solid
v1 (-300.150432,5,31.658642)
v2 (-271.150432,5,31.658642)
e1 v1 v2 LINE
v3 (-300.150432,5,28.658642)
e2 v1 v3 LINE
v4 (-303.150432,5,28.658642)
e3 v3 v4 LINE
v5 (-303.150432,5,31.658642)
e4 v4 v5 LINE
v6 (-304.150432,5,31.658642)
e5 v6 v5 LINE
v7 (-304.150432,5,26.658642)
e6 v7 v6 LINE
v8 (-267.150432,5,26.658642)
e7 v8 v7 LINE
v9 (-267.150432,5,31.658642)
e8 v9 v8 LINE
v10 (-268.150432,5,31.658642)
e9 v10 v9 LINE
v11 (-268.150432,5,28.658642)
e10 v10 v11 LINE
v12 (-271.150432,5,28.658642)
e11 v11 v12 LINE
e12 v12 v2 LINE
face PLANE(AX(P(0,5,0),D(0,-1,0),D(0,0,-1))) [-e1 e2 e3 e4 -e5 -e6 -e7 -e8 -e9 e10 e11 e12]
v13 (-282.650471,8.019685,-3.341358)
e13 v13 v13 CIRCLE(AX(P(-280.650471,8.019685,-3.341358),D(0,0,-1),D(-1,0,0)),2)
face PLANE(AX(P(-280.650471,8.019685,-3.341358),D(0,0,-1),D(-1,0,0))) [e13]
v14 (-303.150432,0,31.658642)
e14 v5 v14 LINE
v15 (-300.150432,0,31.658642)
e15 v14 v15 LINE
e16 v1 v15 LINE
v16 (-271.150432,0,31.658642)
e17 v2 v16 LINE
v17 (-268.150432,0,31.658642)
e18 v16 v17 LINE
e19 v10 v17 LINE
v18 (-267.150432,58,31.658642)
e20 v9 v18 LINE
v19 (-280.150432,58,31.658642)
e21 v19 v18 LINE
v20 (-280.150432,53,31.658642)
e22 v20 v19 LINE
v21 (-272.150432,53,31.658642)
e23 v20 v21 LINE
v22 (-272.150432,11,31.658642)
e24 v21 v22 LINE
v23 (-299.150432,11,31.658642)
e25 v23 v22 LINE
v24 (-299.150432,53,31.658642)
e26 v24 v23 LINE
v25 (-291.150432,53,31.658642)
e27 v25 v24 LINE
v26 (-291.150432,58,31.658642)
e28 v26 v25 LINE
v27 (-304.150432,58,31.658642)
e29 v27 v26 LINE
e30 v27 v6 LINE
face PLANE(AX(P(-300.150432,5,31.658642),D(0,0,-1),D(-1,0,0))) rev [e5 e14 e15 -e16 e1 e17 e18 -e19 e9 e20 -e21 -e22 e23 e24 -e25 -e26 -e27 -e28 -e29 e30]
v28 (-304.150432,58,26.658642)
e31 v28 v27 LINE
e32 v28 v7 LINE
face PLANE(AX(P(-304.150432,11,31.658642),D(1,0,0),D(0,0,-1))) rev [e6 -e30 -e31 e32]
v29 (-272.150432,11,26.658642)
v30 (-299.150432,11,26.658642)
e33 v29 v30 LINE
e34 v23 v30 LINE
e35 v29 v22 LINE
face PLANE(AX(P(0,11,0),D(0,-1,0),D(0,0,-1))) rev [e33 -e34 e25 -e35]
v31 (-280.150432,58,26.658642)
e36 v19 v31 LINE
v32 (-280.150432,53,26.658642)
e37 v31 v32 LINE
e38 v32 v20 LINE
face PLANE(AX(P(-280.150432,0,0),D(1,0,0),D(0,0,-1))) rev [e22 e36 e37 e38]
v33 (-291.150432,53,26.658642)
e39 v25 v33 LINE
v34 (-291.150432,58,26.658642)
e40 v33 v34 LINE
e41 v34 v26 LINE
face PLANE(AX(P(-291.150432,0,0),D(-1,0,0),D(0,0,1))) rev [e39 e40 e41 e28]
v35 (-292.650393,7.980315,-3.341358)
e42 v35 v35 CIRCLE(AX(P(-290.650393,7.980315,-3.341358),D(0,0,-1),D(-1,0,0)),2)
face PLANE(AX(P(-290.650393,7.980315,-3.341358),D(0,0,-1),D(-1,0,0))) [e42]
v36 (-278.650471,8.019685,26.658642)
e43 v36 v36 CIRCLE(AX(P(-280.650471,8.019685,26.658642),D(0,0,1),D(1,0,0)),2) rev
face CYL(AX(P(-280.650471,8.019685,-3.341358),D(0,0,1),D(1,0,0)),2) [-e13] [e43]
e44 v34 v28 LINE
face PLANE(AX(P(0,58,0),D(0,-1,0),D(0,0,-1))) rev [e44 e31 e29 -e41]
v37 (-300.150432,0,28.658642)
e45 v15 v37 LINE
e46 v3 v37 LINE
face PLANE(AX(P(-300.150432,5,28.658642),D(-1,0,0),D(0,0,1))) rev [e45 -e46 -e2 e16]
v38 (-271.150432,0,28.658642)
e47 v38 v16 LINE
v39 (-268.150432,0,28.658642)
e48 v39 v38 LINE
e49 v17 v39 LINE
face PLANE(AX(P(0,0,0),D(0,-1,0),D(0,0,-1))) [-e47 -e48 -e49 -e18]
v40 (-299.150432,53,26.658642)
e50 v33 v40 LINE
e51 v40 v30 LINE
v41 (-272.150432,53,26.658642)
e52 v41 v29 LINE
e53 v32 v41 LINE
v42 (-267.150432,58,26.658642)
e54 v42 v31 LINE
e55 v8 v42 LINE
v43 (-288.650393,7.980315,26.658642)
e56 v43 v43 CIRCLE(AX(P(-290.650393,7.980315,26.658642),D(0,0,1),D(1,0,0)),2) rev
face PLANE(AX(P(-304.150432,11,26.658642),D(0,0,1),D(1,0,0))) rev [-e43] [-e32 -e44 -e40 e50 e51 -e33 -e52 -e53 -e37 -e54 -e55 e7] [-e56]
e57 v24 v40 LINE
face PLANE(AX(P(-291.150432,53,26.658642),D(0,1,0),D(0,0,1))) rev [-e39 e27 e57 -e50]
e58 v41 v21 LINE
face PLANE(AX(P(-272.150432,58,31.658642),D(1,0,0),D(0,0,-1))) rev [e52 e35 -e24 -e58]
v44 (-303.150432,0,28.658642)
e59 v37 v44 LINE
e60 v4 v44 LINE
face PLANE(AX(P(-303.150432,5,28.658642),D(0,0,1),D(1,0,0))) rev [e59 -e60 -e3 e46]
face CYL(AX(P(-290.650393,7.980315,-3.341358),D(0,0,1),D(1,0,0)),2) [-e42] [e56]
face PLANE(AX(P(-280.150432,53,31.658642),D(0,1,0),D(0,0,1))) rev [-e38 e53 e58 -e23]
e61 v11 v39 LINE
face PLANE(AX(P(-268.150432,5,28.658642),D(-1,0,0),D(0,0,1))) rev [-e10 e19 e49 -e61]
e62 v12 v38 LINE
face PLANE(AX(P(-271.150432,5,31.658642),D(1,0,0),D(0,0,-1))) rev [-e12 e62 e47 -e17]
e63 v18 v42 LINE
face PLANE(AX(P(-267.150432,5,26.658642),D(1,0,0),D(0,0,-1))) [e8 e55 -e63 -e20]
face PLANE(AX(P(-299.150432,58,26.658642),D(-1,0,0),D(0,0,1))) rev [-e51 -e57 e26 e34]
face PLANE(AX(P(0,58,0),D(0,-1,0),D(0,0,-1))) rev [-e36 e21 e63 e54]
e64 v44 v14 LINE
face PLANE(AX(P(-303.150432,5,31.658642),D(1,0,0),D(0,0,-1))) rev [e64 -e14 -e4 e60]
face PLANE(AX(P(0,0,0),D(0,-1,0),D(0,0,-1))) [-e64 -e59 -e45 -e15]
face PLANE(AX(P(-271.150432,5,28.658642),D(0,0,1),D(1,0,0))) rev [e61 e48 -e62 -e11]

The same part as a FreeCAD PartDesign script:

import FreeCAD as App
import Part
import Sketcher

V = App.Vector
Q = App.Units.Quantity


def add_polygon(sketch, points):
    """Adds a closed chain of lines whose ends are joined by coincident constraints."""
    first, n = sketch.GeometryCount, len(points)
    for a, b in zip(points, points[1:] + points[:1]):
        sketch.addGeometry(Part.LineSegment(App.Vector(*a, 0), App.Vector(*b, 0)), False)
    for i in range(n):
        sketch.addConstraint(Sketcher.Constraint("Coincident", first + i, 2, first + (i + 1) % n, 1))

doc = App.newDocument("Part")
params = doc.addObject("Spreadsheet::Sheet", "Params")
for row, (alias, value) in enumerate([
    ("sketch1_width", "3 mm"),
    ("pad1_length", "5 mm"),
    ("sketch2_width", "3 mm"),
    ("pad2_length", "5 mm"),
    ("sketch3_width", "5 mm"),
    ("pad3_length", "6 mm"),
    ("sketch4_width", "37 mm"),
    ("sketch4_height", "5 mm"),
    ("pad4_length", "6 mm"),
    ("sketch5_diameter", "4 mm"),
    ("pad5_length", "30 mm"),
    ("sketch6_width", "5 mm"),
    ("pad6_length", "47 mm"),
    ("sketch7_width", "5 mm"),
    ("pad7_length", "8 mm"),
    ("sketch8_width", "5 mm"),
    ("pad8_length", "8 mm"),
], start=1):
    params.set(f"A{row}", alias)
    params.set(f"B{row}", "=" + value)
    params.setAlias(f"B{row}", alias)

body = doc.addObject("PartDesign::Body", "Body")

# Sketch on XZ plane
sketch1 = body.newObject("Sketcher::SketchObject", "Sketch")
sketch1.AttachmentSupport = (doc.getObject("XZ_Plane"), [""])
sketch1.MapMode = "FlatFace"
add_polygon(sketch1, [(-303.2, 28.7), (-303.2, 31.7), (-300.2, 31.7), (-300.2, 28.7)])  # lines 0-3
sketch1.addConstraint(Sketcher.Constraint("Vertical", 0))
sketch1.addConstraint(Sketcher.Constraint("Horizontal", 1))
sketch1.addConstraint(Sketcher.Constraint("Vertical", 2))
sketch1.addConstraint(Sketcher.Constraint("Horizontal", 3))
sketch1.addConstraint(Sketcher.Constraint("Equal", 3, 0))
sketch1.addConstraint(Sketcher.Constraint("DistanceX", 1, 1, 1, 2, Q("3 mm")))
sketch1.addConstraint(Sketcher.Constraint("DistanceX", 0, 2, -1, 1, Q("303.150432 mm")))
sketch1.addConstraint(Sketcher.Constraint("DistanceY", -1, 1, 0, 2, Q("31.658642 mm")))
sketch1.setExpression("Constraints[9]", "Params.sketch1_width")
pad1 = body.newObject("PartDesign::Pad", "Pad")
pad1.Profile = sketch1
pad1.setExpression("Length", "Params.pad1_length")
pad1.Reversed = True
body2 = doc.addObject("PartDesign::Body", "Body001")

# Sketch on XZ plane
sketch2 = body2.newObject("Sketcher::SketchObject", "Sketch001")
sketch2.AttachmentSupport = (doc.getObject("XZ_Plane001"), [""])
sketch2.MapMode = "FlatFace"
add_polygon(sketch2, [(-271.2, 28.7), (-271.2, 31.7), (-268.2, 31.7), (-268.2, 28.7)])  # lines 0-3
sketch2.addConstraint(Sketcher.Constraint("Vertical", 0))
sketch2.addConstraint(Sketcher.Constraint("Horizontal", 1))
sketch2.addConstraint(Sketcher.Constraint("Vertical", 2))
sketch2.addConstraint(Sketcher.Constraint("Horizontal", 3))
sketch2.addConstraint(Sketcher.Constraint("Equal", 3, 0))
sketch2.addConstraint(Sketcher.Constraint("DistanceX", 1, 1, 1, 2, Q("3 mm")))
sketch2.addConstraint(Sketcher.Constraint("DistanceX", 0, 2, -1, 1, Q("271.150432 mm")))
sketch2.addConstraint(Sketcher.Constraint("DistanceY", -1, 1, 0, 2, Q("31.658642 mm")))
sketch2.setExpression("Constraints[9]", "Params.sketch2_width")
pad2 = body2.newObject("PartDesign::Pad", "Pad001")
pad2.Profile = sketch2
pad2.setExpression("Length", "Params.pad2_length")
pad2.Reversed = True
body.AllowCompound = True
doc.recompute()

boolean = body.newObject("PartDesign::Boolean", "Boolean")
boolean.Type = "Fuse"
boolean.addObjects([body2])

# Sketch on XZ plane
sketch3 = body.newObject("Sketcher::SketchObject", "Sketch002")
sketch3.AttachmentSupport = (doc.getObject("XZ_Plane"), [""])
sketch3.MapMode = "FlatFace"
sketch3.AttachmentOffset = App.Placement(V(0, 0, -5), App.Rotation())
add_polygon(sketch3, [(-304, 27), (-304, 32), (-299, 32), (-299, 27)])  # lines 0-3
add_polygon(sketch3, [(-272, 27), (-272, 32), (-267, 32), (-267, 27)])  # lines 4-7
sketch3.addConstraint(Sketcher.Constraint("Vertical", 0))
sketch3.addConstraint(Sketcher.Constraint("Horizontal", 1))
sketch3.addConstraint(Sketcher.Constraint("Vertical", 2))
sketch3.addConstraint(Sketcher.Constraint("Horizontal", 3))
sketch3.addConstraint(Sketcher.Constraint("Vertical", 4))
sketch3.addConstraint(Sketcher.Constraint("Horizontal", 5))
sketch3.addConstraint(Sketcher.Constraint("Vertical", 6))
sketch3.addConstraint(Sketcher.Constraint("Horizontal", 7))
sketch3.addConstraint(Sketcher.Constraint("Horizontal", 1, 2, 4, 2))
sketch3.addConstraint(Sketcher.Constraint("Horizontal", 3, 2, 6, 2))
sketch3.addConstraint(Sketcher.Constraint("Equal", 3, 5))
sketch3.addConstraint(Sketcher.Constraint("Equal", 7, 0))
sketch3.addConstraint(Sketcher.Constraint("DistanceX", 1, 1, 1, 2, Q("5 mm")))
sketch3.addConstraint(Sketcher.Constraint("DistanceX", 1, 2, 4, 2, Q("27 mm")))
sketch3.addConstraint(Sketcher.Constraint("DistanceX", 0, 2, -1, 1, Q("304.150432 mm")))
sketch3.addConstraint(Sketcher.Constraint("DistanceY", -1, 1, 0, 2, Q("31.658642 mm")))
sketch3.setExpression("Constraints[20]", "Params.sketch3_width")
pad3 = body.newObject("PartDesign::Pad", "Pad002")
pad3.Profile = sketch3
pad3.setExpression("Length", "Params.pad3_length")
pad3.Reversed = True

# Sketch on XZ plane
sketch4 = body.newObject("Sketcher::SketchObject", "Sketch003")
sketch4.AttachmentSupport = (doc.getObject("XZ_Plane"), [""])
sketch4.MapMode = "FlatFace"
sketch4.AttachmentOffset = App.Placement(V(0, 0, -11), App.Rotation())
add_polygon(sketch4, [(-304, 27), (-304, 32), (-267, 32), (-267, 27)])  # lines 0-3
sketch4.addConstraint(Sketcher.Constraint("Vertical", 0))
sketch4.addConstraint(Sketcher.Constraint("Horizontal", 1))
sketch4.addConstraint(Sketcher.Constraint("Vertical", 2))
sketch4.addConstraint(Sketcher.Constraint("Horizontal", 3))
sketch4.addConstraint(Sketcher.Constraint("DistanceX", 1, 1, 1, 2, Q("37 mm")))
sketch4.addConstraint(Sketcher.Constraint("DistanceY", 0, 1, 0, 2, Q("5 mm")))
sketch4.addConstraint(Sketcher.Constraint("DistanceX", 0, 2, -1, 1, Q("304.150432 mm")))
sketch4.addConstraint(Sketcher.Constraint("DistanceY", -1, 1, 0, 2, Q("31.658642 mm")))
sketch4.setExpression("Constraints[8]", "Params.sketch4_width")
sketch4.setExpression("Constraints[9]", "Params.sketch4_height")
pad4 = body.newObject("PartDesign::Pad", "Pad003")
pad4.Profile = sketch4
pad4.setExpression("Length", "Params.pad4_length")

# Sketch on XY plane
sketch5 = body.newObject("Sketcher::SketchObject", "Sketch004")
sketch5.AttachmentSupport = (doc.getObject("XY_Plane"), [""])
sketch5.MapMode = "FlatFace"
sketch5.AttachmentOffset = App.Placement(V(0, 0, 26.658642), App.Rotation())
sketch5.addGeometry(Part.Circle(V(-280.7, 8, 0), V(0, 0, 1), 2), False)
sketch5.addGeometry(Part.Circle(V(-290.7, 8, 0), V(0, 0, 1), 2), False)
sketch5.addConstraint(Sketcher.Constraint("Equal", 0, 1))
sketch5.addConstraint(Sketcher.Constraint("Diameter", 0, Q("4 mm")))
sketch5.addConstraint(Sketcher.Constraint("DistanceX", 0, 3, -1, 1, Q("280.650471 mm")))
sketch5.addConstraint(Sketcher.Constraint("DistanceY", 1, 3, 0, 3, Q("0.03937 mm")))
sketch5.addConstraint(Sketcher.Constraint("DistanceY", -1, 1, 0, 3, Q("8.019685 mm")))
sketch5.addConstraint(Sketcher.Constraint("DistanceX", 1, 3, -1, 1, Q("290.650393 mm")))
sketch5.setExpression("Constraints[1]", "Params.sketch5_diameter")
pad5 = body.newObject("PartDesign::Pad", "Pad004")
pad5.Profile = sketch5
pad5.setExpression("Length", "Params.pad5_length")
pad5.Reversed = True

# Sketch on XZ plane
sketch6 = body.newObject("Sketcher::SketchObject", "Sketch005")
sketch6.AttachmentSupport = (doc.getObject("XZ_Plane"), [""])
sketch6.MapMode = "FlatFace"
sketch6.AttachmentOffset = App.Placement(V(0, 0, -11), App.Rotation())
add_polygon(sketch6, [(-272, 27), (-272, 32), (-267, 32), (-267, 27)])  # lines 0-3
add_polygon(sketch6, [(-304, 27), (-304, 32), (-299, 32), (-299, 27)])  # lines 4-7
sketch6.addConstraint(Sketcher.Constraint("Vertical", 0))
sketch6.addConstraint(Sketcher.Constraint("Horizontal", 1))
sketch6.addConstraint(Sketcher.Constraint("Vertical", 2))
sketch6.addConstraint(Sketcher.Constraint("Horizontal", 3))
sketch6.addConstraint(Sketcher.Constraint("Vertical", 4))
sketch6.addConstraint(Sketcher.Constraint("Horizontal", 5))
sketch6.addConstraint(Sketcher.Constraint("Vertical", 6))
sketch6.addConstraint(Sketcher.Constraint("Horizontal", 7))
sketch6.addConstraint(Sketcher.Constraint("Horizontal", 1, 2, 4, 2))
sketch6.addConstraint(Sketcher.Constraint("Horizontal", 3, 2, 6, 2))
sketch6.addConstraint(Sketcher.Constraint("Equal", 3, 5))
sketch6.addConstraint(Sketcher.Constraint("Equal", 7, 0))
sketch6.addConstraint(Sketcher.Constraint("DistanceX", 1, 1, 1, 2, Q("5 mm")))
sketch6.addConstraint(Sketcher.Constraint("DistanceX", 4, 2, 0, 2, Q("32 mm")))
sketch6.addConstraint(Sketcher.Constraint("DistanceX", 0, 2, -1, 1, Q("272.150432 mm")))
sketch6.addConstraint(Sketcher.Constraint("DistanceY", -1, 1, 0, 2, Q("31.658642 mm")))
sketch6.setExpression("Constraints[20]", "Params.sketch6_width")
pad6 = body.newObject("PartDesign::Pad", "Pad005")
pad6.Profile = sketch6
pad6.setExpression("Length", "Params.pad6_length")
pad6.Reversed = True

# Sketch on YZ plane
sketch7 = body.newObject("Sketcher::SketchObject", "Sketch006")
sketch7.AttachmentSupport = (doc.getObject("YZ_Plane"), [""])
sketch7.MapMode = "FlatFace"
sketch7.AttachmentOffset = App.Placement(V(0, 0, -299.150432), App.Rotation())
add_polygon(sketch7, [(58, 32), (53, 32), (53, 27), (58, 27)])  # lines 0-3
sketch7.addConstraint(Sketcher.Constraint("Horizontal", 0))
sketch7.addConstraint(Sketcher.Constraint("Vertical", 1))
sketch7.addConstraint(Sketcher.Constraint("Horizontal", 2))
sketch7.addConstraint(Sketcher.Constraint("Vertical", 3))
sketch7.addConstraint(Sketcher.Constraint("Equal", 2, 1))
sketch7.addConstraint(Sketcher.Constraint("DistanceX", 0, 2, 0, 1, Q("5 mm")))
sketch7.addConstraint(Sketcher.Constraint("DistanceX", -1, 1, 0, 2, Q("53 mm")))
sketch7.addConstraint(Sketcher.Constraint("DistanceY", -1, 1, 0, 2, Q("31.658642 mm")))
sketch7.setExpression("Constraints[9]", "Params.sketch7_width")
pad7 = body.newObject("PartDesign::Pad", "Pad006")
pad7.Profile = sketch7
pad7.setExpression("Length", "Params.pad7_length")

# Sketch on YZ plane
sketch8 = body.newObject("Sketcher::SketchObject", "Sketch007")
sketch8.AttachmentSupport = (doc.getObject("YZ_Plane"), [""])
sketch8.MapMode = "FlatFace"
sketch8.AttachmentOffset = App.Placement(V(0, 0, -272.150432), App.Rotation())
add_polygon(sketch8, [(58, 27), (53, 27), (53, 32), (58, 32)])  # lines 0-3
sketch8.addConstraint(Sketcher.Constraint("Horizontal", 0))
sketch8.addConstraint(Sketcher.Constraint("Vertical", 1))
sketch8.addConstraint(Sketcher.Constraint("Horizontal", 2))
sketch8.addConstraint(Sketcher.Constraint("Vertical", 3))
sketch8.addConstraint(Sketcher.Constraint("Equal", 2, 1))
sketch8.addConstraint(Sketcher.Constraint("DistanceX", 0, 2, 0, 1, Q("5 mm")))
sketch8.addConstraint(Sketcher.Constraint("DistanceX", -1, 1, 0, 2, Q("53 mm")))
sketch8.addConstraint(Sketcher.Constraint("DistanceY", -1, 1, 0, 2, Q("26.658642 mm")))
sketch8.setExpression("Constraints[9]", "Params.sketch8_width")
pad8 = body.newObject("PartDesign::Pad", "Pad007")
pad8.Profile = sketch8
pad8.setExpression("Length", "Params.pad8_length")
pad8.Reversed = True

doc.recompute()
